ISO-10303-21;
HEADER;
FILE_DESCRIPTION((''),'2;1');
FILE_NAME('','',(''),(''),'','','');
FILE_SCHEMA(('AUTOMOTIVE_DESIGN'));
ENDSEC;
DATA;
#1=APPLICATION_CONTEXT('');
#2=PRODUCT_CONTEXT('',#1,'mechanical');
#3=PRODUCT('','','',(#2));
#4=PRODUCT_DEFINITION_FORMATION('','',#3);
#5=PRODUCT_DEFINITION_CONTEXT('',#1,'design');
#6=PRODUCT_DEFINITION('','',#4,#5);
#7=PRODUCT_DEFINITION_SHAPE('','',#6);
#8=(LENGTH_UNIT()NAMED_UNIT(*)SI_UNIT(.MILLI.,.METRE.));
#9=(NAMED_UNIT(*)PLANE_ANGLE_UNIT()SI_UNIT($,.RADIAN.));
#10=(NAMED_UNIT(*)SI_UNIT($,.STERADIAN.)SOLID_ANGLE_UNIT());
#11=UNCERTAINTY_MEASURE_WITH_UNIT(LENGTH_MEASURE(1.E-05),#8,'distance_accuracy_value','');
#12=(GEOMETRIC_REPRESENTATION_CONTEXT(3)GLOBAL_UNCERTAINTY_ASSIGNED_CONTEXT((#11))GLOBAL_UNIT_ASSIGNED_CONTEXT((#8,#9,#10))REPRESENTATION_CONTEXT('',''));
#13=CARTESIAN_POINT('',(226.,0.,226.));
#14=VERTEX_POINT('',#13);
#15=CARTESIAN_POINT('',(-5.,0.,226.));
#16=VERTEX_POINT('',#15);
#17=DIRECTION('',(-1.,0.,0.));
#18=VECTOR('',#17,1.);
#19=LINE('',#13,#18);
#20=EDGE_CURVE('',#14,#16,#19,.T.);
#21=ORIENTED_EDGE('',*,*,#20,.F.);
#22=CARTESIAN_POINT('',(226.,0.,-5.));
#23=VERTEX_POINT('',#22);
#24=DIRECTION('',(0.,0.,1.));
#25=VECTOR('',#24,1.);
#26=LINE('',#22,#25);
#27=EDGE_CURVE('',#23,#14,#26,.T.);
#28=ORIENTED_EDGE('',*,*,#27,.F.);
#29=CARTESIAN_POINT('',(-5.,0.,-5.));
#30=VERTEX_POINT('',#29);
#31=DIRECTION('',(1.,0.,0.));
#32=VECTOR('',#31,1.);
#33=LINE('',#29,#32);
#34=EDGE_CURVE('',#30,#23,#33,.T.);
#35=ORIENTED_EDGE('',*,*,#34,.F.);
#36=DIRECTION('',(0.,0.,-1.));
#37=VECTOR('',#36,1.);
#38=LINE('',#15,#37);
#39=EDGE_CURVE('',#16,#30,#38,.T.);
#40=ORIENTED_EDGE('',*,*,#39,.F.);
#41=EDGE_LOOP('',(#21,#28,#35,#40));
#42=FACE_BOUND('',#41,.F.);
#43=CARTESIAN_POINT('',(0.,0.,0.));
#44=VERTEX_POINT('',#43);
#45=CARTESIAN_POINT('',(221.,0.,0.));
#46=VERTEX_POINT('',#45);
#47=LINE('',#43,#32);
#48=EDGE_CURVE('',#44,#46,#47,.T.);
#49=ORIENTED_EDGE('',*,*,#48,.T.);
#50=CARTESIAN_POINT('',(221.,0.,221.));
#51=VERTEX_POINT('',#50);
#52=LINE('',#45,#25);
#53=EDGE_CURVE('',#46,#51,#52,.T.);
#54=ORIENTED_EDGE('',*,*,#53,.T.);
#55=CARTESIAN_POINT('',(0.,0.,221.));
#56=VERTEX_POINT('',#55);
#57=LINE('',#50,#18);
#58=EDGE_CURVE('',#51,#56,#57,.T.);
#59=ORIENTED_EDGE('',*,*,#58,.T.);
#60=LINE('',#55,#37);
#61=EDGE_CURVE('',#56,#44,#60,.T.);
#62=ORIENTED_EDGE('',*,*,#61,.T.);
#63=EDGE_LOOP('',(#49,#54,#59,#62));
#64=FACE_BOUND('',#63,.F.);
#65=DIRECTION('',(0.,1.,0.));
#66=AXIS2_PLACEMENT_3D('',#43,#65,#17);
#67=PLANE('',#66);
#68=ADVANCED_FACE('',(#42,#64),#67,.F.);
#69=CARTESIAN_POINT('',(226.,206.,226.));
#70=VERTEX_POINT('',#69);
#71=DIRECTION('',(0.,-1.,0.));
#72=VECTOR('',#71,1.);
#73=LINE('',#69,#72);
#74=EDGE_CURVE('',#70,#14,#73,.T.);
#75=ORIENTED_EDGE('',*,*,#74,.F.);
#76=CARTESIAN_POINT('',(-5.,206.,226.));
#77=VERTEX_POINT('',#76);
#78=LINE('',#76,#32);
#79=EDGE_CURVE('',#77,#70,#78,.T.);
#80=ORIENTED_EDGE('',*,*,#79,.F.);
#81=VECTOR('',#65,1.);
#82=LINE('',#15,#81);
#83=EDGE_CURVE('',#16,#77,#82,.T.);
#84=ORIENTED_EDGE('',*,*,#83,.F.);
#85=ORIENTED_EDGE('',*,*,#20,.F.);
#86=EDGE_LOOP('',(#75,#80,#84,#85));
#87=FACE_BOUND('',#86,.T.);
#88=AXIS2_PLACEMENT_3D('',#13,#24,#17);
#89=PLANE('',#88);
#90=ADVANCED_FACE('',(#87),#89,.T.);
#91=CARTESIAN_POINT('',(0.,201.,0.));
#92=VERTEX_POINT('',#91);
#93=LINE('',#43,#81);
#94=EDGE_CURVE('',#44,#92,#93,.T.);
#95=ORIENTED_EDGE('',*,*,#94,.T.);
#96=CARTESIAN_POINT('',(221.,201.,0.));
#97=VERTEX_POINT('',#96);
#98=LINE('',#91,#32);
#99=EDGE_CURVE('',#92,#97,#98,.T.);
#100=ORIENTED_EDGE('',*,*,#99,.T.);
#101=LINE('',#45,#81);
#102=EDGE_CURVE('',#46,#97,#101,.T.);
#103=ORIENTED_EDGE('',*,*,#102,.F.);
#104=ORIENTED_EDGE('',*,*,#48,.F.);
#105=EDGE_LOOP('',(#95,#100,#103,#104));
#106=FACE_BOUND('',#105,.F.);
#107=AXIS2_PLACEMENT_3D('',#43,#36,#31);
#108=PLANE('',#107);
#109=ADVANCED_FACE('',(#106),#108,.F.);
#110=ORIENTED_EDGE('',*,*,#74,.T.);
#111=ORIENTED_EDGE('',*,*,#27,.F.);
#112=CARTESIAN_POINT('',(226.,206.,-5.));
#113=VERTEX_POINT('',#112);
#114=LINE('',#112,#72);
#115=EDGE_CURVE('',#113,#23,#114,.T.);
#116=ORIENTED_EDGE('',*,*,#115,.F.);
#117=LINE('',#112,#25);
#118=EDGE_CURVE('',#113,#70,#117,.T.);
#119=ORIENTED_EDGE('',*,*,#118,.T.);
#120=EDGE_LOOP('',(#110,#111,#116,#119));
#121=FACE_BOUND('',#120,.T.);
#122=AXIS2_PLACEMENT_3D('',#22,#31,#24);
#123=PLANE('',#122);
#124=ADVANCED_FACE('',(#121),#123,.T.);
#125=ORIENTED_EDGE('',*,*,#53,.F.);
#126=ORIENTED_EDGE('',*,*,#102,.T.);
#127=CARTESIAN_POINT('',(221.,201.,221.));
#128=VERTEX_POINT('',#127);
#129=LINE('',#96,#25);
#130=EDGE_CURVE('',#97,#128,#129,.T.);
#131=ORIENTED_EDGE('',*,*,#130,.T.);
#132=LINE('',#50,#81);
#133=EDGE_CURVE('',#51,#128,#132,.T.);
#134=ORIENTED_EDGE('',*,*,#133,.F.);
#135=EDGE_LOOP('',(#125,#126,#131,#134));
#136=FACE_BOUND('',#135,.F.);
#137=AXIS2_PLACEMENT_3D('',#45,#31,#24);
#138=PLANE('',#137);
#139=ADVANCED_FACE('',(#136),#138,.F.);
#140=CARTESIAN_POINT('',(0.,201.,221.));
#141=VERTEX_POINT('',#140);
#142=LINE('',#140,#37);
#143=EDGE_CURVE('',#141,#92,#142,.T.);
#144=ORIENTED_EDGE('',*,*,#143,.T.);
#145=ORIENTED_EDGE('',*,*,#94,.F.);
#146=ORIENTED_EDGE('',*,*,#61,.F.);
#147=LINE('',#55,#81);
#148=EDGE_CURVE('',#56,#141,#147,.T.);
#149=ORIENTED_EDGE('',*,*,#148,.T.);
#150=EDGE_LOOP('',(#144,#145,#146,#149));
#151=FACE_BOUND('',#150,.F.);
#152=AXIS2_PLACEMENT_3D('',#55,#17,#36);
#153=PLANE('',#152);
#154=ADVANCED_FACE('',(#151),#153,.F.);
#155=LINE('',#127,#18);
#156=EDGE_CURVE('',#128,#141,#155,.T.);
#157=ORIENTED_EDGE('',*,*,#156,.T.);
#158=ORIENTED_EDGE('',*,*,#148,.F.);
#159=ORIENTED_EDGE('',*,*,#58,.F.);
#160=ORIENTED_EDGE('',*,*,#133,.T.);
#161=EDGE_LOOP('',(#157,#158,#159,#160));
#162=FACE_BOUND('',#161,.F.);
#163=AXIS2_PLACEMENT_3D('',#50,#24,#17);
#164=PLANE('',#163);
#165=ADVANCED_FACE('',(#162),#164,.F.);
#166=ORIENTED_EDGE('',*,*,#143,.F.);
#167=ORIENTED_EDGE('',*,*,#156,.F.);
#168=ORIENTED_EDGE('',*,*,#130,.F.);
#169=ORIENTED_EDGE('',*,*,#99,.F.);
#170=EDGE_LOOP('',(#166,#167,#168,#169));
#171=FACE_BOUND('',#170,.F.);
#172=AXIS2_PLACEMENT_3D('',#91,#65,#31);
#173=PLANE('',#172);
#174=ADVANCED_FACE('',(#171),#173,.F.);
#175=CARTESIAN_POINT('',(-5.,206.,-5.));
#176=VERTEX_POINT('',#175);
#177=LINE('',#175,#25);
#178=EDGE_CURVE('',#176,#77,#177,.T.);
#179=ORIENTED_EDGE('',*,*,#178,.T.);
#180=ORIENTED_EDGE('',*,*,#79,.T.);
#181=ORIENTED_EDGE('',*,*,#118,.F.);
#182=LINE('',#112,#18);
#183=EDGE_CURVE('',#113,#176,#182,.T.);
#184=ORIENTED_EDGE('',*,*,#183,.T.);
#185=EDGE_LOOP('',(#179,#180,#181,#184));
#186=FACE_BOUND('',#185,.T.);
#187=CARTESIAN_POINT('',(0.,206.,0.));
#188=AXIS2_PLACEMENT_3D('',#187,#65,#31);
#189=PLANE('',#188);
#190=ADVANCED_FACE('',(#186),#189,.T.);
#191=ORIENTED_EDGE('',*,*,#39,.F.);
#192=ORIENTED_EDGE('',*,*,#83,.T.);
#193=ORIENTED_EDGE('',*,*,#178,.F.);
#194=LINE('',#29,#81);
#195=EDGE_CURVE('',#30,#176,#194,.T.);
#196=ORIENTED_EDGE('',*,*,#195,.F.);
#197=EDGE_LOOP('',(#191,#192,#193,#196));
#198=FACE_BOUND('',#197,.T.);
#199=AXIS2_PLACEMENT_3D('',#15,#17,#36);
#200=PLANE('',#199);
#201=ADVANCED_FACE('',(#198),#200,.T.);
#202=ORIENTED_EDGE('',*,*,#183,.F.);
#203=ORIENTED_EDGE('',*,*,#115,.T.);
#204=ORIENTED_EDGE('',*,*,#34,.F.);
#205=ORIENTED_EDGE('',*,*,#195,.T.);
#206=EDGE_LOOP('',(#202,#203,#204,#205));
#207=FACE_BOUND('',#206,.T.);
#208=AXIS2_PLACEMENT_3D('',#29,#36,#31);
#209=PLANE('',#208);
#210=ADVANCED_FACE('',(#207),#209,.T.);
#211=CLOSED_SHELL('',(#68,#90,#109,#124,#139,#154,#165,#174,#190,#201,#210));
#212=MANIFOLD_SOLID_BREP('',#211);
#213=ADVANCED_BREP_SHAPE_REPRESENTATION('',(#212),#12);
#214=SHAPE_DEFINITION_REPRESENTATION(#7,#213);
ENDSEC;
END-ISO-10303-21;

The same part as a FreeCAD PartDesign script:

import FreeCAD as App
import Part
import Sketcher
from FreeCAD import Vector


def add_polygon(sketch, points):
    """Adds a closed chain of lines whose ends are joined by coincident constraints."""
    first, n = sketch.GeometryCount, len(points)
    for a, b in zip(points, points[1:] + points[:1]):
        sketch.addGeometry(Part.LineSegment(App.Vector(*a, 0), App.Vector(*b, 0)), False)
    for i in range(n):
        sketch.addConstraint(Sketcher.Constraint("Coincident", first + i, 2, first + (i + 1) % n, 1))

doc = App.newDocument("Part")
body = doc.addObject("PartDesign::Body", "Body")

# Sketch on XZ plane
sketch1 = body.newObject("Sketcher::SketchObject", "Sketch")
sketch1.AttachmentSupport = (doc.getObject("XZ_Plane"), [""])
sketch1.MapMode = "FlatFace"
add_polygon(sketch1, [(226, -5), (-5, -5), (-5, 226), (226, 226)])  # lines 0-3
add_polygon(sketch1, [(0, 221), (0, 0), (221, 0), (221, 221)])  # lines 4-7
sketch1.addConstraint(Sketcher.Constraint("Horizontal", 0))
sketch1.addConstraint(Sketcher.Constraint("Vertical", 1))
sketch1.addConstraint(Sketcher.Constraint("Horizontal", 2))
sketch1.addConstraint(Sketcher.Constraint("Vertical", 3))
sketch1.addConstraint(Sketcher.Constraint("Vertical", 4))
sketch1.addConstraint(Sketcher.Constraint("Horizontal", 5))
sketch1.addConstraint(Sketcher.Constraint("Vertical", 6))
sketch1.addConstraint(Sketcher.Constraint("Horizontal", 7))
sketch1.addConstraint(Sketcher.Constraint("Coincident", 4, 2, -1, 1))
sketch1.addConstraint(Sketcher.Constraint("Equal", 2, 1))
sketch1.addConstraint(Sketcher.Constraint("Equal", 7, 4))
sketch1.addConstraint(Sketcher.Constraint("DistanceX", 5, 1, 5, 2, 221.0))
sketch1.addConstraint(Sketcher.Constraint("DistanceX", 0, 2, -1, 1, 5.0))
sketch1.addConstraint(Sketcher.Constraint("DistanceY", 0, 2, -1, 1, 5.0))
sketch1.addConstraint(Sketcher.Constraint("DistanceX", 5, 2, 3, 2, 5.0))
pad1 = body.newObject("PartDesign::Pad", "Pad")
pad1.Profile = sketch1
pad1.Length = 201
pad1.Reversed = True

# Sketch on XZ plane
sketch2 = body.newObject("Sketcher::SketchObject", "Sketch001")
sketch2.AttachmentSupport = (doc.getObject("XZ_Plane"), [""])
sketch2.MapMode = "FlatFace"
sketch2.AttachmentOffset = App.Placement(Vector(0, 0, -201), App.Rotation())
add_polygon(sketch2, [(226, 226), (226, -5), (-5, -5), (-5, 226)])  # lines 0-3
sketch2.addConstraint(Sketcher.Constraint("Vertical", 0))
sketch2.addConstraint(Sketcher.Constraint("Horizontal", 1))
sketch2.addConstraint(Sketcher.Constraint("Vertical", 2))
sketch2.addConstraint(Sketcher.Constraint("Horizontal", 3))
sketch2.addConstraint(Sketcher.Constraint("Equal", 3, 0))
sketch2.addConstraint(Sketcher.Constraint("DistanceX", 1, 2, 1, 1, 231.0))
sketch2.addConstraint(Sketcher.Constraint("DistanceX", -1, 1, 0, 2, 226.0))
sketch2.addConstraint(Sketcher.Constraint("DistanceY", 0, 2, -1, 1, 5.0))
pad2 = body.newObject("PartDesign::Pad", "Pad001")
pad2.Profile = sketch2
pad2.Length = 5
pad2.Reversed = True

doc.recompute()
